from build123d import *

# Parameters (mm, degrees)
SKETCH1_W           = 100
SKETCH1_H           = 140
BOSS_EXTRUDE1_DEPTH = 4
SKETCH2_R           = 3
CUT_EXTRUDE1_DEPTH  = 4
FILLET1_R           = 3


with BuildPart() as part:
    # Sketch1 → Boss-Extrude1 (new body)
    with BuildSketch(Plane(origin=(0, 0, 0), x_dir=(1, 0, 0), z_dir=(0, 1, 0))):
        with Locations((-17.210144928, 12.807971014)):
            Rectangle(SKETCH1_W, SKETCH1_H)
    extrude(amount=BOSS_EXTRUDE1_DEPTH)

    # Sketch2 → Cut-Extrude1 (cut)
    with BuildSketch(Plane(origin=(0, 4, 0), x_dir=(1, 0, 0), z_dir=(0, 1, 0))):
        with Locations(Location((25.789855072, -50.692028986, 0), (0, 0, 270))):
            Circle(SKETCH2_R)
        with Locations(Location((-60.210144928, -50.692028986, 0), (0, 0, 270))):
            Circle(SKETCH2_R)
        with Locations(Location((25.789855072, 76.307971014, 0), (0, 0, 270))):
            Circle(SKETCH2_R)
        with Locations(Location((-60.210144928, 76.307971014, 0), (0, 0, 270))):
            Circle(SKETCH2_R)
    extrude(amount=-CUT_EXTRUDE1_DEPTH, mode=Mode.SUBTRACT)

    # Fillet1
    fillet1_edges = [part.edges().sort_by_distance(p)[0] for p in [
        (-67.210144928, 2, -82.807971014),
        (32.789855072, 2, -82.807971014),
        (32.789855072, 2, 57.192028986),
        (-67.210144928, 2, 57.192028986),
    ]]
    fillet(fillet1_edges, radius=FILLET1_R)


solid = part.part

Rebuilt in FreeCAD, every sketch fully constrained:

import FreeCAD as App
import Part
import Sketcher
from FreeCAD import Vector


def edges_at(feature, points):
    """Names of the edges that pass closest to the given points."""
    edges = feature.Shape.Edges
    near = lambda p: min(range(len(edges)), key=lambda i: edges[i].distToShape(Part.Vertex(*p))[0])
    return sorted({f"Edge{near(p) + 1}" for p in points})


def add_polygon(sketch, points):
    """Adds a closed chain of lines whose ends are joined by coincident constraints."""
    first, n = sketch.GeometryCount, len(points)
    for a, b in zip(points, points[1:] + points[:1]):
        sketch.addGeometry(Part.LineSegment(App.Vector(*a, 0), App.Vector(*b, 0)), False)
    for i in range(n):
        sketch.addConstraint(Sketcher.Constraint("Coincident", first + i, 2, first + (i + 1) % n, 1))

doc = App.newDocument("Part")
body = doc.addObject("PartDesign::Body", "Body")

# Sketch on XZ plane
sketch1 = body.newObject("Sketcher::SketchObject", "Sketch")
sketch1.AttachmentSupport = (doc.getObject("XZ_Plane"), [""])
sketch1.MapMode = "FlatFace"
add_polygon(sketch1, [(-67, -83), (-67, 57), (33, 57), (33, -83)])  # lines 0-3
sketch1.addConstraint([
    Sketcher.Constraint("Vertical", 0),
    Sketcher.Constraint("Horizontal", 1),
    Sketcher.Constraint("Vertical", 2),
    Sketcher.Constraint("Horizontal", 3),
    Sketcher.Constraint("DistanceX", 1, 1, 1, 2, 100.0),
    Sketcher.Constraint("DistanceY", 0, 1, 0, 2, 140.0),
    Sketcher.Constraint("DistanceY", -1, 1, 0, 2, 57.192029),
    Sketcher.Constraint("DistanceX", 0, 2, -1, 1, 67.210145),
])
pad1 = body.newObject("PartDesign::Pad", "Pad")
pad1.Profile = sketch1
pad1.Length = 4
pad1.Reversed = True

# Sketch on XZ plane
sketch2 = body.newObject("Sketcher::SketchObject", "Sketch001")
sketch2.AttachmentSupport = (doc.getObject("XZ_Plane"), [""])
sketch2.MapMode = "FlatFace"
sketch2.AttachmentOffset = App.Placement(Vector(0, 0, -4), App.Rotation())
sketch2.addGeometry([
    Part.Circle(Vector(25.8, 50.7, 0), Vector(0, 0, 1), 3),
    Part.Circle(Vector(-60.2, 50.7, 0), Vector(0, 0, 1), 3),
    Part.Circle(Vector(25.8, -76.3, 0), Vector(0, 0, 1), 3),
    Part.Circle(Vector(-60.2, -76.3, 0), Vector(0, 0, 1), 3),
], False)
sketch2.addConstraint([
    Sketcher.Constraint("Equal", 0, 1),
    Sketcher.Constraint("Equal", 1, 2),
    Sketcher.Constraint("Equal", 2, 3),
    Sketcher.Constraint("Horizontal", 0, 3, 1, 3),
    Sketcher.Constraint("Horizontal", 2, 3, 3, 3),
    Sketcher.Constraint("Vertical", 0, 3, 2, 3),
    Sketcher.Constraint("Vertical", 1, 3, 3, 3),
    Sketcher.Constraint("Diameter", 0, 6.0),
    Sketcher.Constraint("DistanceX", 1, 3, 0, 3, 86.0),
    Sketcher.Constraint("DistanceY", 2, 3, 0, 3, 127.0),
    Sketcher.Constraint("DistanceY", -1, 1, 0, 3, 50.692029),
    Sketcher.Constraint("DistanceX", -1, 1, 0, 3, 25.789855),
])
pocket1 = body.newObject("PartDesign::Pocket", "Pocket")
pocket1.Profile = sketch2
pocket1.Length = 4
pocket1.Reversed = True
doc.recompute()

fillet = body.newObject("PartDesign::Fillet", "Fillet")
fillet.Base = (pocket1, edges_at(pocket1, [
    (-67.21, 2, -82.808),
    (32.79, 2, -82.808),
    (32.79, 2, 57.192),
    (-67.21, 2, 57.192),
]))
fillet.Radius = 3

doc.recompute()
